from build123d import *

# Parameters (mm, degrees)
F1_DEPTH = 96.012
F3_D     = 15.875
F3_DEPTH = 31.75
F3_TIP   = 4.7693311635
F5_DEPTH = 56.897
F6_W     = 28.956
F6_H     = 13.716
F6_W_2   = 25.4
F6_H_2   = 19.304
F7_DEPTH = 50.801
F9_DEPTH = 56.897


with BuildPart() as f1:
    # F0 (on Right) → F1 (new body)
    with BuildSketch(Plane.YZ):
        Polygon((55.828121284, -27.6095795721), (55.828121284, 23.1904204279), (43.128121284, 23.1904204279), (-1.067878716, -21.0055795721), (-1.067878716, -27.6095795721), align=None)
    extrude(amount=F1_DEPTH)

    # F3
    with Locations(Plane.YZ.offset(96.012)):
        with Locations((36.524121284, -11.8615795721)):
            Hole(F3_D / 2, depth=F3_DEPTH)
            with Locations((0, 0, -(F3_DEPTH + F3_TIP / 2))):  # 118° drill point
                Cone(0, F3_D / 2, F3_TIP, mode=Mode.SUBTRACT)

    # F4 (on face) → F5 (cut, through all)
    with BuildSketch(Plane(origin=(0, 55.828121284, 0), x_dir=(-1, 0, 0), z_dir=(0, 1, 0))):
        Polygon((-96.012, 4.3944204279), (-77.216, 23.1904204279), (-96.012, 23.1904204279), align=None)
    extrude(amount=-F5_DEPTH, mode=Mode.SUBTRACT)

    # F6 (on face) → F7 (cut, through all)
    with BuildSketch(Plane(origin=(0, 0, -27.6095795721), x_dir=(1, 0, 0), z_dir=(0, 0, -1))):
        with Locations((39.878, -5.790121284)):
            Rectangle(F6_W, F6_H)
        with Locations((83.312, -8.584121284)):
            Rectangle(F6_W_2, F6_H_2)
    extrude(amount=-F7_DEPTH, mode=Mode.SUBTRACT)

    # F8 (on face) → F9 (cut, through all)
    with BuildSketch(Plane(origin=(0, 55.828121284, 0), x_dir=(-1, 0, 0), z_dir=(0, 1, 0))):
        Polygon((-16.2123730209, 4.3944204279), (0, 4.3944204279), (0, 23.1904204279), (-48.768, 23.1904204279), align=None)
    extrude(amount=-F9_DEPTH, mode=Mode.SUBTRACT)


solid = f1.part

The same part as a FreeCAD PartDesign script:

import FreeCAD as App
import Part
import Sketcher
from FreeCAD import Vector
Q = App.Units.Quantity

doc = App.newDocument("Part")
body = doc.addObject("PartDesign::Body", "Body")

# Sketch on YZ plane
sketch1 = body.newObject("Sketcher::SketchObject", "Sketch")
sketch1.AttachmentSupport = (doc.getObject("YZ_Plane"), [""])
sketch1.MapMode = "FlatFace"
sketch1.addGeometry(Part.LineSegment(Vector(56, -28, 0), Vector(56, 23, 0)), False)
sketch1.addGeometry(Part.LineSegment(Vector(56, 23, 0), Vector(43, 23, 0)), False)
sketch1.addGeometry(Part.LineSegment(Vector(43, 23, 0), Vector(-1, -21, 0)), False)
sketch1.addGeometry(Part.LineSegment(Vector(-1, -21, 0), Vector(-1, -28, 0)), False)
sketch1.addGeometry(Part.LineSegment(Vector(-1, -28, 0), Vector(56, -28, 0)), False)
sketch1.addConstraint(Sketcher.Constraint("Coincident", 0, 2, 1, 1))
sketch1.addConstraint(Sketcher.Constraint("Coincident", 1, 2, 2, 1))
sketch1.addConstraint(Sketcher.Constraint("Coincident", 2, 2, 3, 1))
sketch1.addConstraint(Sketcher.Constraint("Coincident", 3, 2, 4, 1))
sketch1.addConstraint(Sketcher.Constraint("Coincident", 4, 2, 0, 1))
sketch1.addConstraint(Sketcher.Constraint("Vertical", 0))
sketch1.addConstraint(Sketcher.Constraint("Horizontal", 1))
sketch1.addConstraint(Sketcher.Constraint("Vertical", 3))
sketch1.addConstraint(Sketcher.Constraint("Horizontal", 4))
sketch1.addConstraint(Sketcher.Constraint("DistanceY", 0, 1, 0, 2, Q("2 in")))
sketch1.addConstraint(Sketcher.Constraint("DistanceX", 1, 2, 1, 1, Q("0.5 in")))
sketch1.addConstraint(Sketcher.Constraint("Angle", 2, Q("-135 deg")))
sketch1.addConstraint(Sketcher.Constraint("DistanceX", 4, 1, 4, 2, Q("2.24 in")))
sketch1.addConstraint(Sketcher.Constraint("DistanceX", -1, 1, 0, 2, Q("55.828121 mm")))
sketch1.addConstraint(Sketcher.Constraint("DistanceY", -1, 1, 0, 2, Q("23.19042 mm")))
pad1 = body.newObject("PartDesign::Pad", "Pad")
pad1.Profile = sketch1
pad1.Length = Q("3.78 in")

# Sketch on YZ plane
sketch2 = body.newObject("Sketcher::SketchObject", "Sketch001")
sketch2.AttachmentSupport = (doc.getObject("YZ_Plane"), [""])
sketch2.MapMode = "FlatFace"
sketch2.AttachmentOffset = App.Placement(Vector(0, 0, 3.78 * 25.4), App.Rotation())
sketch2.addGeometry(Part.Circle(Vector(37, -12, 0), Vector(0, 0, 1), 8), False)
sketch2.addConstraint(Sketcher.Constraint("Diameter", 0, Q("0.625 in")))
sketch2.addConstraint(Sketcher.Constraint("DistanceX", -1, 1, 0, 3, Q("36.524121 mm")))
sketch2.addConstraint(Sketcher.Constraint("DistanceY", 0, 3, -1, 1, Q("11.86158 mm")))
doc.recompute()
hole = body.newObject("PartDesign::Hole", "Hole")
hole.Profile = sketch2
hole.ThreadType = "None"
hole.Diameter = Q("0.625 in")
hole.DepthType = "Dimension"
hole.Depth = Q("1.25 in")
hole.DrillPoint = "Angled"
hole.DrillPointAngle = 118

# Sketch on XZ plane
sketch3 = body.newObject("Sketcher::SketchObject", "Sketch002")
sketch3.AttachmentSupport = (doc.getObject("XZ_Plane"), [""])
sketch3.MapMode = "FlatFace"
sketch3.AttachmentOffset = App.Placement(Vector(0, 0, -55.828121), App.Rotation())
sketch3.addGeometry(Part.LineSegment(Vector(96, 4, 0), Vector(77, 23, 0)), False)
sketch3.addGeometry(Part.LineSegment(Vector(77, 23, 0), Vector(96, 23, 0)), False)
sketch3.addGeometry(Part.LineSegment(Vector(96, 23, 0), Vector(96, 4, 0)), False)
sketch3.addConstraint(Sketcher.Constraint("Coincident", 0, 2, 1, 1))
sketch3.addConstraint(Sketcher.Constraint("Coincident", 1, 2, 2, 1))
sketch3.addConstraint(Sketcher.Constraint("Coincident", 2, 2, 0, 1))
sketch3.addConstraint(Sketcher.Constraint("Horizontal", 1))
sketch3.addConstraint(Sketcher.Constraint("Vertical", 2))
sketch3.addConstraint(Sketcher.Constraint("Equal", 1, 2))
sketch3.addConstraint(Sketcher.Constraint("DistanceX", 1, 1, 1, 2, Q("0.74 in")))
sketch3.addConstraint(Sketcher.Constraint("DistanceX", -1, 1, 0, 2, Q("3.04 in")))
sketch3.addConstraint(Sketcher.Constraint("DistanceY", -1, 1, 0, 2, Q("23.19042 mm")))
pocket1 = body.newObject("PartDesign::Pocket", "Pocket")
pocket1.Profile = sketch3
pocket1.Type = "ThroughAll"
pocket1.Reversed = True

# Sketch on XY plane
sketch4 = body.newObject("Sketcher::SketchObject", "Sketch003")
sketch4.AttachmentSupport = (doc.getObject("XY_Plane"), [""])
sketch4.MapMode = "FlatFace"
sketch4.AttachmentOffset = App.Placement(Vector(0, 0, -27.60958), App.Rotation())
sketch4.addGeometry(Part.LineSegment(Vector(25, -1, 0), Vector(25, 13, 0)), False)
sketch4.addGeometry(Part.LineSegment(Vector(25, 13, 0), Vector(54, 13, 0)), False)
sketch4.addGeometry(Part.LineSegment(Vector(54, 13, 0), Vector(54, -1, 0)), False)
sketch4.addGeometry(Part.LineSegment(Vector(54, -1, 0), Vector(25, -1, 0)), False)
sketch4.addGeometry(Part.LineSegment(Vector(71, -1, 0), Vector(71, 18, 0)), False)
sketch4.addGeometry(Part.LineSegment(Vector(71, 18, 0), Vector(96, 18, 0)), False)
sketch4.addGeometry(Part.LineSegment(Vector(96, 18, 0), Vector(96, -1, 0)), False)
sketch4.addGeometry(Part.LineSegment(Vector(96, -1, 0), Vector(71, -1, 0)), False)
sketch4.addConstraint(Sketcher.Constraint("Coincident", 0, 2, 1, 1))
sketch4.addConstraint(Sketcher.Constraint("Coincident", 1, 2, 2, 1))
sketch4.addConstraint(Sketcher.Constraint("Coincident", 2, 2, 3, 1))
sketch4.addConstraint(Sketcher.Constraint("Coincident", 3, 2, 0, 1))
sketch4.addConstraint(Sketcher.Constraint("Coincident", 4, 2, 5, 1))
sketch4.addConstraint(Sketcher.Constraint("Coincident", 5, 2, 6, 1))
sketch4.addConstraint(Sketcher.Constraint("Coincident", 6, 2, 7, 1))
sketch4.addConstraint(Sketcher.Constraint("Coincident", 7, 2, 4, 1))
sketch4.addConstraint(Sketcher.Constraint("Vertical", 0))
sketch4.addConstraint(Sketcher.Constraint("Horizontal", 1))
sketch4.addConstraint(Sketcher.Constraint("Vertical", 2))
sketch4.addConstraint(Sketcher.Constraint("Horizontal", 3))
sketch4.addConstraint(Sketcher.Constraint("Vertical", 4))
sketch4.addConstraint(Sketcher.Constraint("Horizontal", 5))
sketch4.addConstraint(Sketcher.Constraint("Vertical", 6))
sketch4.addConstraint(Sketcher.Constraint("Horizontal", 7))
sketch4.addConstraint(Sketcher.Constraint("Horizontal", 3, 2, 6, 2))
sketch4.addConstraint(Sketcher.Constraint("DistanceX", 5, 1, 5, 2, Q("1 in")))
sketch4.addConstraint(Sketcher.Constraint("DistanceX", -1, 1, 0, 2, Q("1 in")))
sketch4.addConstraint(Sketcher.Constraint("DistanceX", 1, 1, 1, 2, Q("1.14 in")))
sketch4.addConstraint(Sketcher.Constraint("DistanceY", 0, 1, 0, 2, Q("0.54 in")))
sketch4.addConstraint(Sketcher.Constraint("DistanceY", 4, 1, 4, 2, Q("0.76 in")))
sketch4.addConstraint(Sketcher.Constraint("DistanceX", -1, 1, 4, 2, Q("2.78 in")))
sketch4.addConstraint(Sketcher.Constraint("DistanceY", -1, 1, 0, 2, Q("12.648121 mm")))
pocket2 = body.newObject("PartDesign::Pocket", "Pocket001")
pocket2.Profile = sketch4
pocket2.Type = "ThroughAll"
pocket2.Reversed = True

# Sketch on XZ plane
sketch5 = body.newObject("Sketcher::SketchObject", "Sketch004")
sketch5.AttachmentSupport = (doc.getObject("XZ_Plane"), [""])
sketch5.MapMode = "FlatFace"
sketch5.AttachmentOffset = App.Placement(Vector(0, 0, -55.828121), App.Rotation())
sketch5.addGeometry(Part.LineSegment(Vector(16, 4, 0), Vector(0, 4, 0)), False)
sketch5.addGeometry(Part.LineSegment(Vector(0, 4, 0), Vector(0, 23, 0)), False)
sketch5.addGeometry(Part.LineSegment(Vector(0, 23, 0), Vector(49, 23, 0)), False)
sketch5.addGeometry(Part.LineSegment(Vector(49, 23, 0), Vector(16, 4, 0)), False)
sketch5.addConstraint(Sketcher.Constraint("Coincident", 0, 2, 1, 1))
sketch5.addConstraint(Sketcher.Constraint("Coincident", 1, 2, 2, 1))
sketch5.addConstraint(Sketcher.Constraint("Coincident", 2, 2, 3, 1))
sketch5.addConstraint(Sketcher.Constraint("Coincident", 3, 2, 0, 1))
sketch5.addConstraint(Sketcher.Constraint("Horizontal", 0))
sketch5.addConstraint(Sketcher.Constraint("Vertical", 1))
sketch5.addConstraint(Sketcher.Constraint("Horizontal", 2))
sketch5.addConstraint(Sketcher.Constraint("PointOnObject", 0, 2, -2))
sketch5.addConstraint(Sketcher.Constraint("Angle", 3, Q("-150 deg")))
sketch5.addConstraint(Sketcher.Constraint("DistanceX", 2, 1, 2, 2, Q("1.92 in")))
sketch5.addConstraint(Sketcher.Constraint("DistanceY", 1, 1, 1, 2, Q("0.74 in")))
sketch5.addConstraint(Sketcher.Constraint("DistanceY", -1, 1, 0, 2, Q("4.39442 mm")))
pocket3 = body.newObject("PartDesign::Pocket", "Pocket002")
pocket3.Profile = sketch5
pocket3.Type = "ThroughAll"
pocket3.Reversed = True

doc.recompute()
